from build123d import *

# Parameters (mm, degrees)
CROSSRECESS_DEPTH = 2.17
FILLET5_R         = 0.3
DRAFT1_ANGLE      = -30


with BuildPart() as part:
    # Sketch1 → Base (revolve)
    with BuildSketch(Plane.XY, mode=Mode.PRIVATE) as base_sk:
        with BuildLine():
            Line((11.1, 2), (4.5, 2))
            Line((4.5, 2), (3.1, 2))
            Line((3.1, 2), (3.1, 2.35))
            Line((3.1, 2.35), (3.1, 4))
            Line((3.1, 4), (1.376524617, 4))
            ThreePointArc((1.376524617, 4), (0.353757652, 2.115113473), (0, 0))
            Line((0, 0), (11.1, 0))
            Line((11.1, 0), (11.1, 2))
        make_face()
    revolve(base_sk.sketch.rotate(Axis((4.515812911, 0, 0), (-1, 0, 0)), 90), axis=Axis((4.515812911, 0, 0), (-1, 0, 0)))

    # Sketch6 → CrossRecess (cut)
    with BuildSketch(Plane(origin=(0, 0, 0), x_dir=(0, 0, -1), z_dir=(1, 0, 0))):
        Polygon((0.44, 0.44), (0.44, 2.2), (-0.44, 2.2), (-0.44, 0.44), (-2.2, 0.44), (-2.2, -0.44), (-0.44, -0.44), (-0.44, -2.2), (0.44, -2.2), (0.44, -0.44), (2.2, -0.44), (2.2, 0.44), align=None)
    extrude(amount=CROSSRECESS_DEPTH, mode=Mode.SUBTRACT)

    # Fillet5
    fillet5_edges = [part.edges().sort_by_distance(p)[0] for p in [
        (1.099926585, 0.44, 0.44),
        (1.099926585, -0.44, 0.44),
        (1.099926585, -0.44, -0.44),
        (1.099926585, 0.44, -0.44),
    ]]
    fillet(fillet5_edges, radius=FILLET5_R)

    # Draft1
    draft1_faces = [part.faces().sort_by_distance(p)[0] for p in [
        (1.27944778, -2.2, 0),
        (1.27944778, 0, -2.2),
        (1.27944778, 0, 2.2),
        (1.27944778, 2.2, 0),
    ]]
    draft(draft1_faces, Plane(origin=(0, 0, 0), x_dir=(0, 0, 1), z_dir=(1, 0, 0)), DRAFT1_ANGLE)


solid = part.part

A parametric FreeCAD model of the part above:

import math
import FreeCAD as App
import Part
import Sketcher
from FreeCAD import Vector


def edges_at(feature, points):
    """Names of the edges that pass closest to the given points."""
    edges = feature.Shape.Edges
    near = lambda p: min(range(len(edges)), key=lambda i: edges[i].distToShape(Part.Vertex(*p))[0])
    return sorted({f"Edge{near(p) + 1}" for p in points})


def faces_at(feature, points):
    """Names of the faces that lie closest to the given points."""
    faces = feature.Shape.Faces
    near = lambda p: min(range(len(faces)), key=lambda i: faces[i].distToShape(Part.Vertex(*p))[0])
    return sorted({f"Face{near(p) + 1}" for p in points})

doc = App.newDocument("Part")
body = doc.addObject("PartDesign::Body", "Body")

# Sketch on XY plane
sketch1 = body.newObject("Sketcher::SketchObject", "Sketch")
sketch1.AttachmentSupport = (doc.getObject("XY_Plane"), [""])
sketch1.MapMode = "FlatFace"
sketch1.addGeometry([
    Part.LineSegment(Vector(11.1, 2, 0), Vector(3.1, 2, 0)),  # 0
    Part.LineSegment(Vector(3.1, 2, 0), Vector(3.1, 4, 0)),  # 1
    Part.LineSegment(Vector(3.1, 4, 0), Vector(1.4, 4, 0)),  # 2
    Part.ArcOfCircle(Part.Circle(Vector(6.5, 0, 0), Vector(0, 0, 1), 6.5), math.radians(142), math.radians(180)),  # 3
    Part.LineSegment(Vector(0, 0, 0), Vector(11.1, 0, 0)),  # 4
    Part.LineSegment(Vector(11.1, 0, 0), Vector(11.1, 2, 0)),  # 5
], False)
sketch1.addConstraint([
    Sketcher.Constraint("Coincident", 0, 2, 1, 1),
    Sketcher.Constraint("Coincident", 1, 2, 2, 1),
    Sketcher.Constraint("Coincident", 2, 2, 3, 1),
    Sketcher.Constraint("Coincident", 3, 2, 4, 1),
    Sketcher.Constraint("Coincident", 4, 2, 5, 1),
    Sketcher.Constraint("Coincident", 5, 2, 0, 1),
    Sketcher.Constraint("Horizontal", 0),
    Sketcher.Constraint("Vertical", 1),
    Sketcher.Constraint("Horizontal", 2),
    Sketcher.Constraint("Horizontal", 4),
    Sketcher.Constraint("Vertical", 5),
    Sketcher.Constraint("Coincident", 3, 2, -1, 1),
    Sketcher.Constraint("PointOnObject", 3, 3, -1),
    Sketcher.Constraint("Equal", 1, 5),
    Sketcher.Constraint("Radius", 3, 6.5),
    Sketcher.Constraint("DistanceX", 0, 2, 0, 1, 8.0),
    Sketcher.Constraint("DistanceY", 1, 1, 1, 2, 2.0),
    Sketcher.Constraint("DistanceX", 4, 1, 4, 2, 11.1),
])
revolution = body.newObject("PartDesign::Revolution", "Revolution")
revolution.Profile = sketch1
revolution.ReferenceAxis = (sketch1, ["H_Axis"])
revolution.Angle = 360

# Sketch on YZ plane
sketch2 = body.newObject("Sketcher::SketchObject", "Sketch001")
sketch2.AttachmentSupport = (doc.getObject("YZ_Plane"), [""])
sketch2.MapMode = "FlatFace"
sketch2.addGeometry([
    Part.LineSegment(Vector(0.4, -0.4, 0), Vector(2.2, -0.4, 0)),  # 0
    Part.LineSegment(Vector(2.2, -0.4, 0), Vector(2.2, 0.4, 0)),  # 1
    Part.LineSegment(Vector(2.2, 0.4, 0), Vector(0.4, 0.4, 0)),  # 2
    Part.LineSegment(Vector(0.4, 0.4, 0), Vector(0.4, 2.2, 0)),  # 3
    Part.LineSegment(Vector(0.4, 2.2, 0), Vector(-0.4, 2.2, 0)),  # 4
    Part.LineSegment(Vector(-0.4, 2.2, 0), Vector(-0.4, 0.4, 0)),  # 5
    Part.LineSegment(Vector(-0.4, 0.4, 0), Vector(-2.2, 0.4, 0)),  # 6
    Part.LineSegment(Vector(-2.2, 0.4, 0), Vector(-2.2, -0.4, 0)),  # 7
    Part.LineSegment(Vector(-2.2, -0.4, 0), Vector(-0.4, -0.4, 0)),  # 8
    Part.LineSegment(Vector(-0.4, -0.4, 0), Vector(-0.4, -2.2, 0)),  # 9
    Part.LineSegment(Vector(-0.4, -2.2, 0), Vector(0.4, -2.2, 0)),  # 10
    Part.LineSegment(Vector(0.4, -2.2, 0), Vector(0.4, -0.4, 0)),  # 11
], False)
sketch2.addConstraint([
    Sketcher.Constraint("Coincident", 0, 2, 1, 1),
    Sketcher.Constraint("Coincident", 1, 2, 2, 1),
    Sketcher.Constraint("Coincident", 2, 2, 3, 1),
    Sketcher.Constraint("Coincident", 3, 2, 4, 1),
    Sketcher.Constraint("Coincident", 4, 2, 5, 1),
    Sketcher.Constraint("Coincident", 5, 2, 6, 1),
    Sketcher.Constraint("Coincident", 6, 2, 7, 1),
    Sketcher.Constraint("Coincident", 7, 2, 8, 1),
    Sketcher.Constraint("Coincident", 8, 2, 9, 1),
    Sketcher.Constraint("Coincident", 9, 2, 10, 1),
    Sketcher.Constraint("Coincident", 10, 2, 11, 1),
    Sketcher.Constraint("Coincident", 11, 2, 0, 1),
    Sketcher.Constraint("Horizontal", 0),
    Sketcher.Constraint("Vertical", 1),
    Sketcher.Constraint("Horizontal", 2),
    Sketcher.Constraint("Vertical", 3),
    Sketcher.Constraint("Horizontal", 4),
    Sketcher.Constraint("Vertical", 5),
    Sketcher.Constraint("Horizontal", 6),
    Sketcher.Constraint("Vertical", 7),
    Sketcher.Constraint("Horizontal", 8),
    Sketcher.Constraint("Vertical", 9),
    Sketcher.Constraint("Horizontal", 10),
    Sketcher.Constraint("Vertical", 11),
    Sketcher.Constraint("Symmetric", 0, 2, 6, 2, -1, 1),
    Sketcher.Constraint("Symmetric", 2, 2, 8, 2, -1, 1),
    Sketcher.Constraint("Symmetric", 4, 2, 10, 2, -1, 1),
    Sketcher.Constraint("Symmetric", 2, 2, 5, 2, -2),
    Sketcher.Constraint("Equal", 10, 1),
    Sketcher.Constraint("Equal", 8, 3),
    Sketcher.Constraint("DistanceX", 0, 1, 0, 2, 1.76),
    Sketcher.Constraint("DistanceX", 4, 2, 4, 1, 0.88),
])
pocket1 = body.newObject("PartDesign::Pocket", "Pocket")
pocket1.Profile = sketch2
pocket1.Length = 2.17
pocket1.Reversed = True
doc.recompute()

fillet = body.newObject("PartDesign::Fillet", "Fillet")
fillet.Base = (pocket1, edges_at(pocket1, [
    (1.1, 0.44, 0.44),
    (1.1, -0.44, 0.44),
    (1.1, -0.44, -0.44),
    (1.1, 0.44, -0.44),
]))
fillet.Radius = 0.3
doc.recompute()

draft = body.newObject("PartDesign::Draft", "Draft")
draft.Base = (fillet, faces_at(fillet, [
    (1.277, -2.2, 0),
    (1.277, 0, -2.2),
    (1.277, 0, 2.2),
    (1.277, 2.2, 0),
]))
draft.NeutralPlane = (doc.getObject("YZ_Plane"), [""])
draft.Angle = 30
draft.Reversed = True

doc.recompute()
